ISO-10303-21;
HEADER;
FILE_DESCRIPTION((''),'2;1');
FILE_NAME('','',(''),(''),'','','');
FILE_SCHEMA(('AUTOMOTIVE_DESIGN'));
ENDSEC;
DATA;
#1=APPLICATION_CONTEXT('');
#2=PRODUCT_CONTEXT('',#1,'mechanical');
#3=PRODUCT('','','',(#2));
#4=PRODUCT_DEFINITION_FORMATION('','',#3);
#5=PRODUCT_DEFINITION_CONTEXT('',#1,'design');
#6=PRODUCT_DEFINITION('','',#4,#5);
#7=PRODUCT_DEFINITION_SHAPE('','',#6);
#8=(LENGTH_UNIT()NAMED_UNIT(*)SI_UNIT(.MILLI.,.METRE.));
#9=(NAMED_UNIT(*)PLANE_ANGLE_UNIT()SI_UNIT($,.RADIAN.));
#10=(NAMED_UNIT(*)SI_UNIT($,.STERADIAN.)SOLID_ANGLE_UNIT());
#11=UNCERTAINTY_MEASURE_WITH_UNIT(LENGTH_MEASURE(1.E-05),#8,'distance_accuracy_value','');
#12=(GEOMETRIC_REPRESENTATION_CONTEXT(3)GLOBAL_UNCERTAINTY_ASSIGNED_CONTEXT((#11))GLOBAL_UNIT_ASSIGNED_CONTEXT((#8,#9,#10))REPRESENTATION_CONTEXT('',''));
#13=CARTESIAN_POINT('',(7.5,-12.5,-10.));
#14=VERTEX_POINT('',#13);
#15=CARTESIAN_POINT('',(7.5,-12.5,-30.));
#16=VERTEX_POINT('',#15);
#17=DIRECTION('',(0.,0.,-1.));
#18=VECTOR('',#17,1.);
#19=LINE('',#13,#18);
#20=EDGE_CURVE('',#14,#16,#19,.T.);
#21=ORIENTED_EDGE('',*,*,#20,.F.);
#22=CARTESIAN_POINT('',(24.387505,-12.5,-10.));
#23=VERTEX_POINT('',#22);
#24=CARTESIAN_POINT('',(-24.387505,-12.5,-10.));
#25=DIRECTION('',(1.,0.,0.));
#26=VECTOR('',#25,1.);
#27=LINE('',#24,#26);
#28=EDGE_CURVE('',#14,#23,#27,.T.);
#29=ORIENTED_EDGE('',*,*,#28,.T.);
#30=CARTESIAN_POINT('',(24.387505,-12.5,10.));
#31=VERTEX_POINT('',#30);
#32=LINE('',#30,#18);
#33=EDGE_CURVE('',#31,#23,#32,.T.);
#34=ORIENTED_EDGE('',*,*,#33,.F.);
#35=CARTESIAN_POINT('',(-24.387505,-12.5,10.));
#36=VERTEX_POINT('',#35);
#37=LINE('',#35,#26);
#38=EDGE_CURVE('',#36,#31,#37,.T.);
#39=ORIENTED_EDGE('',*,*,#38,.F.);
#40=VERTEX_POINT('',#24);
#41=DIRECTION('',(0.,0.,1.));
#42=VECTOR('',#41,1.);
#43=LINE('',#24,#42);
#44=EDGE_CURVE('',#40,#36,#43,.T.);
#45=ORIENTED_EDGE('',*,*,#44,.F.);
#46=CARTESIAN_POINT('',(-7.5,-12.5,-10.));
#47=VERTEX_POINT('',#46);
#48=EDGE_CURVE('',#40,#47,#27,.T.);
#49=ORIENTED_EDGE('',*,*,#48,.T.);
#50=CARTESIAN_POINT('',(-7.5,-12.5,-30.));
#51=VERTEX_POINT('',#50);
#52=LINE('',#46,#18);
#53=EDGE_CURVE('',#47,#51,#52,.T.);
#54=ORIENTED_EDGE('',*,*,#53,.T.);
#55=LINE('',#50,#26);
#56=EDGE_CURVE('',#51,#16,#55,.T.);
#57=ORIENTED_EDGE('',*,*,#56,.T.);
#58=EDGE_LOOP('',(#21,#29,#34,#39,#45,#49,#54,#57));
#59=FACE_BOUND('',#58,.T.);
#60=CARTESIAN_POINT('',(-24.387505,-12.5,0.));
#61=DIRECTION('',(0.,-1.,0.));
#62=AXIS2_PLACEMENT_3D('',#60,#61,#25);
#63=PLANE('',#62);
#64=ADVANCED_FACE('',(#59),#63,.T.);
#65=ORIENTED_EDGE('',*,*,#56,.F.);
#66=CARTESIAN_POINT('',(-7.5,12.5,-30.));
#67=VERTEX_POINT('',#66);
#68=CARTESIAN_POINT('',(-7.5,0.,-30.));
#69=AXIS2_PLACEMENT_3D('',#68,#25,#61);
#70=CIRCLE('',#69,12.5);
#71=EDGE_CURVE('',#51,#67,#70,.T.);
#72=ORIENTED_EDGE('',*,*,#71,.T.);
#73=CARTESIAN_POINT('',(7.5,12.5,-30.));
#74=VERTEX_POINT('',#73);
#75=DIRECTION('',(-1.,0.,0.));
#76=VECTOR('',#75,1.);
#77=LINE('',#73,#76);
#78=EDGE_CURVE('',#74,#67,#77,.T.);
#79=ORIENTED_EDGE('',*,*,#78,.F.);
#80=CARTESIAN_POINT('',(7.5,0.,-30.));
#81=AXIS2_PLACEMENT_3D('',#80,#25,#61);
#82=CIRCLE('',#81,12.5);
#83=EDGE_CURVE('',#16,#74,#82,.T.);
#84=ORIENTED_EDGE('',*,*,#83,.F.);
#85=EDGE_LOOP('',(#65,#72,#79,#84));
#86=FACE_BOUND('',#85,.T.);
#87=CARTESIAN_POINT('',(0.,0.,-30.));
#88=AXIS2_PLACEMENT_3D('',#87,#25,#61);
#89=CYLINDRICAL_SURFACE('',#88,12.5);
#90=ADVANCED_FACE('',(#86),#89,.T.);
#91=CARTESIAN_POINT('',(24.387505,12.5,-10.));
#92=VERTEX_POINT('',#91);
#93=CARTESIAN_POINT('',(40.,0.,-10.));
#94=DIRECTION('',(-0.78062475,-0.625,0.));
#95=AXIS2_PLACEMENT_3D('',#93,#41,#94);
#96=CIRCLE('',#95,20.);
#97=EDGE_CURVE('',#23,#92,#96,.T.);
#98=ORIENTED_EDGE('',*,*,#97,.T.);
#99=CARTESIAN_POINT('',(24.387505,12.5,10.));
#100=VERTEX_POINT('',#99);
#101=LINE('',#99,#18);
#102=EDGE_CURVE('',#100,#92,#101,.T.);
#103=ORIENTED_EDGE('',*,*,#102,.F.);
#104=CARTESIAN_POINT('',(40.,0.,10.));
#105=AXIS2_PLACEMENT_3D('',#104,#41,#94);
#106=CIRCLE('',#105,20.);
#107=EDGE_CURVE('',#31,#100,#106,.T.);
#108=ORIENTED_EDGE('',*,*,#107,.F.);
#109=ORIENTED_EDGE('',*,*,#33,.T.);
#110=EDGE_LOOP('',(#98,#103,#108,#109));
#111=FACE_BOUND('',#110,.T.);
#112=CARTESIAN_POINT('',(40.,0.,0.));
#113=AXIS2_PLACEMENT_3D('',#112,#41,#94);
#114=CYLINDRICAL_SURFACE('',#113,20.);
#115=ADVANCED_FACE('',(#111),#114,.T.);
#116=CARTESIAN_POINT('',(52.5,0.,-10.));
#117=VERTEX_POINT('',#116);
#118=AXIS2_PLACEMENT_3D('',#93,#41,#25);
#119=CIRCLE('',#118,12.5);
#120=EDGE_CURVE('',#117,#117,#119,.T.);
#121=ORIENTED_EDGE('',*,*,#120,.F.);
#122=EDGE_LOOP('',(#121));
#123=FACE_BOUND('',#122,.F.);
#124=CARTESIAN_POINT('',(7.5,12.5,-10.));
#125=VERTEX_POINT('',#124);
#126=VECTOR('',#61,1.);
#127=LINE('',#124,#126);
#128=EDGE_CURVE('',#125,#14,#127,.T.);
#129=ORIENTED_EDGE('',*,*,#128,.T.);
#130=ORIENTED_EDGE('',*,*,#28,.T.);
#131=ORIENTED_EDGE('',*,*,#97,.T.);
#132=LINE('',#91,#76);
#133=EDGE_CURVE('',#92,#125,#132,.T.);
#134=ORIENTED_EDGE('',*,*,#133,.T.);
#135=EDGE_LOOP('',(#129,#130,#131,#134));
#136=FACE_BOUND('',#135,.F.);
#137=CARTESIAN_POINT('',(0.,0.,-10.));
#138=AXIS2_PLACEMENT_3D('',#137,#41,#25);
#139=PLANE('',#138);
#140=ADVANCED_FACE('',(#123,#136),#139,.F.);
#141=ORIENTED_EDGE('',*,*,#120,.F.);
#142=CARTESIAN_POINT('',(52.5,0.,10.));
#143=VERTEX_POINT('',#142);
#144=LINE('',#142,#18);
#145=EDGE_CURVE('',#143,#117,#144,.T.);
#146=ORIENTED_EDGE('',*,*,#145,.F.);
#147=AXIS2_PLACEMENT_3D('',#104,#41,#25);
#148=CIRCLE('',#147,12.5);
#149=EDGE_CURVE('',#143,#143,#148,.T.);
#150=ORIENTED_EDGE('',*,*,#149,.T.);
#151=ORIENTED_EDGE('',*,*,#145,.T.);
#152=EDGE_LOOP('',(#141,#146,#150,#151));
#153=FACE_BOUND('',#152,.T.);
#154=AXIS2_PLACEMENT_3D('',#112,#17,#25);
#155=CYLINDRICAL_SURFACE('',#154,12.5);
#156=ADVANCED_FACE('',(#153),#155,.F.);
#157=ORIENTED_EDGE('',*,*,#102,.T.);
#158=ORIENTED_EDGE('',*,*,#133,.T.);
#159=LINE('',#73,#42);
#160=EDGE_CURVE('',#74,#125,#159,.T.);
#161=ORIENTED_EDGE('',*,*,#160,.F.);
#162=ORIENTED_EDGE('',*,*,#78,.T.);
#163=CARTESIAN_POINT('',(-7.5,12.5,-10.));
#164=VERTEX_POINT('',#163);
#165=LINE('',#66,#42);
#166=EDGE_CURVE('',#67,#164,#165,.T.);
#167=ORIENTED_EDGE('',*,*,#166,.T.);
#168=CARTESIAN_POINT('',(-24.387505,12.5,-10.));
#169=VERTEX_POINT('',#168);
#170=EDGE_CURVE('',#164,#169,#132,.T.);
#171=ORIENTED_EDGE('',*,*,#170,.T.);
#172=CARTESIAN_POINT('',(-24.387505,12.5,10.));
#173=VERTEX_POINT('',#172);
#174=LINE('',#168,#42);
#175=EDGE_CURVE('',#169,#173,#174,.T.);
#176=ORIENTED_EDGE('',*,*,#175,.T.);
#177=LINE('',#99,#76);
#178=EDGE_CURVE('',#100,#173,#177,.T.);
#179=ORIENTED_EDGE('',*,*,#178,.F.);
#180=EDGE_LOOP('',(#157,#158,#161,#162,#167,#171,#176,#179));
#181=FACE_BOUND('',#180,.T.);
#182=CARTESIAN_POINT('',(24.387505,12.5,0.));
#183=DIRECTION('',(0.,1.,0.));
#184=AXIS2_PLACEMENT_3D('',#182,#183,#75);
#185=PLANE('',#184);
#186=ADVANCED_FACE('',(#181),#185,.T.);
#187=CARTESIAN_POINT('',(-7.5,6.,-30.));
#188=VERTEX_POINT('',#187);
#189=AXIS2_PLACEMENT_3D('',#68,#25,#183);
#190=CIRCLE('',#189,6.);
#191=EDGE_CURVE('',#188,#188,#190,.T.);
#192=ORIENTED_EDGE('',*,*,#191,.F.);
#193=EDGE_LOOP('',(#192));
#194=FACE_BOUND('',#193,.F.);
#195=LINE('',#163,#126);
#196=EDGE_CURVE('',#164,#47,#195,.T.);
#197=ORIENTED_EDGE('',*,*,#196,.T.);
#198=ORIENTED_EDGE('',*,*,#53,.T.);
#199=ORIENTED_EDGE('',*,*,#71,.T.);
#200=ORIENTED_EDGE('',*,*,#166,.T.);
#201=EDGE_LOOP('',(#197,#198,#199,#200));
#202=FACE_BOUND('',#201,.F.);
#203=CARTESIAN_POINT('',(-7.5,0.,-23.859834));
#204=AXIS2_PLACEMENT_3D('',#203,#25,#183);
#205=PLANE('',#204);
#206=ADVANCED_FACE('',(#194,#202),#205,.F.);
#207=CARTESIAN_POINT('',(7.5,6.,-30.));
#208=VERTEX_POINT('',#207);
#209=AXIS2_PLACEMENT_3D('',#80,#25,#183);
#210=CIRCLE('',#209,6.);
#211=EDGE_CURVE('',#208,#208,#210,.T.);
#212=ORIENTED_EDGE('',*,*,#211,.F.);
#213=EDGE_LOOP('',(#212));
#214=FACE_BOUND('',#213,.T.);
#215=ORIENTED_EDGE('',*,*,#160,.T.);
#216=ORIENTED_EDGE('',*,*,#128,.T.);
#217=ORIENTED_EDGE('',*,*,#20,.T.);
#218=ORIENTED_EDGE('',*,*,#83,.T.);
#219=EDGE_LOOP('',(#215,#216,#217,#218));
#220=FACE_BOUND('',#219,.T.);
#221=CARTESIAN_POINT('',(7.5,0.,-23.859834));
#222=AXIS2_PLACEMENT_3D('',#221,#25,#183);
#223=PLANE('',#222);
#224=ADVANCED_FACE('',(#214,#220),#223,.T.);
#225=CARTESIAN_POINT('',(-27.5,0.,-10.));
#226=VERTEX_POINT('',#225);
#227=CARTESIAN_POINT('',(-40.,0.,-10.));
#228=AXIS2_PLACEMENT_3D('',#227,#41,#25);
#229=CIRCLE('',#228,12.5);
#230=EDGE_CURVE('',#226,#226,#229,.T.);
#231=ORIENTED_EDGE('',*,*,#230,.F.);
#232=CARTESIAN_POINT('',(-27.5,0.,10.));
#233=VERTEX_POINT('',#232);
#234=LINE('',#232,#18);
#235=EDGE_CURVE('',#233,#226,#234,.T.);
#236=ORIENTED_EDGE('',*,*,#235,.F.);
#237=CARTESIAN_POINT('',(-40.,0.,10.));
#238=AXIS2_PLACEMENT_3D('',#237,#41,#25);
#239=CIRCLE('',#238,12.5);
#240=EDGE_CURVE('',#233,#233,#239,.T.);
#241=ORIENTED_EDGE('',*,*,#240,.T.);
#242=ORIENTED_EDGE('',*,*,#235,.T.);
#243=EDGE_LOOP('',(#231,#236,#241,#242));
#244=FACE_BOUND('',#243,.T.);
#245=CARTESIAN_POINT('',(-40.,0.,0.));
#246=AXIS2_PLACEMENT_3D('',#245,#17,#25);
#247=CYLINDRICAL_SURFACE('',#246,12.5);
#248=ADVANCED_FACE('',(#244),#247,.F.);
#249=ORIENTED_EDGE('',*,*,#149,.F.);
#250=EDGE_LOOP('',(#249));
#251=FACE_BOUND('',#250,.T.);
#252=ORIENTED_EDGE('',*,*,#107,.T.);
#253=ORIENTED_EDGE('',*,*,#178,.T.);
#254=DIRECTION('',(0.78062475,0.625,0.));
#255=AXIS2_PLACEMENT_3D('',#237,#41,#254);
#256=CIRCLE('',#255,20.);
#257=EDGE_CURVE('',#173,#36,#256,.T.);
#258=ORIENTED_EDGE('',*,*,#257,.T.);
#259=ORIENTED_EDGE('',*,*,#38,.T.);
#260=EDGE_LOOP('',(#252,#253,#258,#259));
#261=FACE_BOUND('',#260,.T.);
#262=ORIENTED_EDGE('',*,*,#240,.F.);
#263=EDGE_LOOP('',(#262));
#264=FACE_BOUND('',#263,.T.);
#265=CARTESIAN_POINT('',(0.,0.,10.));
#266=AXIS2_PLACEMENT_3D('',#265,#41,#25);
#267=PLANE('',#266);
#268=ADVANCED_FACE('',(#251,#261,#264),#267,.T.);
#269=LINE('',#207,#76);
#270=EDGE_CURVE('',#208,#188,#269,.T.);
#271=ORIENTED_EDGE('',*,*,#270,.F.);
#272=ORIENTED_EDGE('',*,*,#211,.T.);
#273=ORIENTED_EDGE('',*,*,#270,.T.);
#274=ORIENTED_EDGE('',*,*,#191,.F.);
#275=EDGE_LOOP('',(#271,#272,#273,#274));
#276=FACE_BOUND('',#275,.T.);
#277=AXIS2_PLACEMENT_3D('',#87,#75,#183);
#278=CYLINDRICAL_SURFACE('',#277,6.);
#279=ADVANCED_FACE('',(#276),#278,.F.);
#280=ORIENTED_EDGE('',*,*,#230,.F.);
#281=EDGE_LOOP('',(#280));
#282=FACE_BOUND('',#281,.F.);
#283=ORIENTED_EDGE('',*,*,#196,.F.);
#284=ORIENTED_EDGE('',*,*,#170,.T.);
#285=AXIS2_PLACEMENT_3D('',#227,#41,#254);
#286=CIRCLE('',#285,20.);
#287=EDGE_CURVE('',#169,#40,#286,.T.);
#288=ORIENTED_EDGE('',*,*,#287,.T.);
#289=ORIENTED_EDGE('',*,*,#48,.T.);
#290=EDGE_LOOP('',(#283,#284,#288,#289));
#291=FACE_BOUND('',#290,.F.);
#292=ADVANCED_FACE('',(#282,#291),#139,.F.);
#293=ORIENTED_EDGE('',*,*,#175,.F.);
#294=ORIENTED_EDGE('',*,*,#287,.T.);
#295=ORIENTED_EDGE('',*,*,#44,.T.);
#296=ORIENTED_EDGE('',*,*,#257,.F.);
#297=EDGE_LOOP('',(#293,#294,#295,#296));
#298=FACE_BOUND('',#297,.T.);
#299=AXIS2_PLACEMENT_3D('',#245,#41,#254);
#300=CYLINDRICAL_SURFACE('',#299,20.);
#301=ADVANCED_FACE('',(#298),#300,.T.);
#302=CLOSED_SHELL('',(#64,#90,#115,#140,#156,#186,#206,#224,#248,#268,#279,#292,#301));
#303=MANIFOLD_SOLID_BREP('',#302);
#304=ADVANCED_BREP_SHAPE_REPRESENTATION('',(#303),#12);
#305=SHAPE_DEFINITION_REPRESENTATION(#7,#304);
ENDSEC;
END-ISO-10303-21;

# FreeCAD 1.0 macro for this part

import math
import FreeCAD as App
import Part
import Sketcher

V = App.Vector

doc = App.newDocument("Part")
params = doc.addObject("Spreadsheet::Sheet", "Params")
for row, (alias, value) in enumerate([
    ("sketch1_diameter", "25 mm"),
    ("sketch1_radius", "20 mm"),
    ("pad1_length", "20 mm"),
    ("sketch2_diameter", "12 mm"),
    ("sketch2_radius", "12.5 mm"),
    ("sketch2_height", "20 mm"),
    ("pad2_length", "15 mm"),
], start=1):
    params.set(f"A{row}", alias)
    params.set(f"B{row}", "=" + value)
    params.setAlias(f"B{row}", alias)

body = doc.addObject("PartDesign::Body", "Body")

# Sketch on XY plane
sketch1 = body.newObject("Sketcher::SketchObject", "Sketch")
sketch1.AttachmentSupport = (doc.getObject("XY_Plane"), [""])
sketch1.MapMode = "FlatFace"
sketch1.addGeometry(Part.LineSegment(V(24.387505, 12.5, 0), V(-24.387505, 12.5, 0)), False)
sketch1.addGeometry(Part.ArcOfCircle(Part.Circle(V(-40, 0, 0), V(0, 0, 1), 20), math.radians(38.682187), math.radians(321.317813)), False)
sketch1.addGeometry(Part.LineSegment(V(-24.387505, -12.5, 0), V(24.387505, -12.5, 0)), False)
sketch1.addGeometry(Part.ArcOfCircle(Part.Circle(V(40, 0, 0), V(0, 0, 1), 20), math.radians(-141.317813), math.radians(141.317813)), False)
sketch1.addGeometry(Part.Circle(V(-40, 0, 0), V(0, 0, 1), 12.5), False)
sketch1.addGeometry(Part.Circle(V(40, 0, 0), V(0, 0, 1), 12.5), False)
sketch1.addConstraint(Sketcher.Constraint("Coincident", 0, 2, 1, 1))
sketch1.addConstraint(Sketcher.Constraint("Coincident", 1, 2, 2, 1))
sketch1.addConstraint(Sketcher.Constraint("Coincident", 2, 2, 3, 1))
sketch1.addConstraint(Sketcher.Constraint("Coincident", 3, 2, 0, 1))
sketch1.addConstraint(Sketcher.Constraint("Horizontal", 0))
sketch1.addConstraint(Sketcher.Constraint("Horizontal", 2))
sketch1.addConstraint(Sketcher.Constraint("Coincident", 4, 3, 1, 3))
sketch1.addConstraint(Sketcher.Constraint("Coincident", 5, 3, 3, 3))
sketch1.addConstraint(Sketcher.Constraint("Equal", 1, 3))
sketch1.addConstraint(Sketcher.Constraint("Equal", 4, 5))
sketch1.addConstraint(Sketcher.Constraint("Symmetric", 1, 3, 3, 3, -1, 1))
sketch1.addConstraint(Sketcher.Constraint("Symmetric", 0, 2, 1, 2, -1))
sketch1.addConstraint(Sketcher.Constraint("Diameter", 4, 25.0))
sketch1.addConstraint(Sketcher.Constraint("Radius", 1, 20.0))
sketch1.addConstraint(Sketcher.Constraint("DistanceX", 1, 3, -1, 1, 40.0))
sketch1.addConstraint(Sketcher.Constraint("DistanceY", 1, 2, 0, 2, 25.0))
sketch1.setExpression("Constraints[12]", "Params.sketch1_diameter")
sketch1.setExpression("Constraints[13]", "Params.sketch1_radius")
pad1 = body.newObject("PartDesign::Pad", "Pad")
pad1.Profile = sketch1
pad1.setExpression("Length", "Params.pad1_length")
pad1.Midplane = True

# Sketch on YZ plane
sketch2 = body.newObject("Sketcher::SketchObject", "Sketch001")
sketch2.AttachmentSupport = (doc.getObject("YZ_Plane"), [""])
sketch2.MapMode = "FlatFace"
sketch2.addGeometry(Part.LineSegment(V(12.5, -10, 0), V(-12.5, -10, 0)), False)
sketch2.addGeometry(Part.LineSegment(V(-12.5, -10, 0), V(-12.5, -30, 0)), False)
sketch2.addGeometry(Part.ArcOfCircle(Part.Circle(V(0, -30, 0), V(0, 0, 1), 12.5), math.radians(180), math.radians(360)), False)
sketch2.addGeometry(Part.LineSegment(V(12.5, -30, 0), V(12.5, -10, 0)), False)
sketch2.addGeometry(Part.Circle(V(0, -30, 0), V(0, 0, 1), 6), False)
sketch2.addConstraint(Sketcher.Constraint("Coincident", 0, 2, 1, 1))
sketch2.addConstraint(Sketcher.Constraint("Tangent", 1, 2, 2, 1))
sketch2.addConstraint(Sketcher.Constraint("Tangent", 2, 2, 3, 1))
sketch2.addConstraint(Sketcher.Constraint("Coincident", 3, 2, 0, 1))
sketch2.addConstraint(Sketcher.Constraint("Horizontal", 0))
sketch2.addConstraint(Sketcher.Constraint("Vertical", 1))
sketch2.addConstraint(Sketcher.Constraint("Vertical", 3))
sketch2.addConstraint(Sketcher.Constraint("Coincident", 4, 3, 2, 3))
sketch2.addConstraint(Sketcher.Constraint("PointOnObject", 2, 3, -2))
sketch2.addConstraint(Sketcher.Constraint("Diameter", 4, 12.0))
sketch2.addConstraint(Sketcher.Constraint("Radius", 2, 12.5))
sketch2.addConstraint(Sketcher.Constraint("DistanceY", 1, 2, 1, 1, 20.0))
sketch2.addConstraint(Sketcher.Constraint("DistanceY", 2, 3, -1, 1, 30.0))
sketch2.setExpression("Constraints[9]", "Params.sketch2_diameter")
sketch2.setExpression("Constraints[10]", "Params.sketch2_radius")
sketch2.setExpression("Constraints[11]", "Params.sketch2_height")
pad2 = body.newObject("PartDesign::Pad", "Pad001")
pad2.Profile = sketch2
pad2.setExpression("Length", "Params.pad2_length")
pad2.Midplane = True

doc.recompute()
